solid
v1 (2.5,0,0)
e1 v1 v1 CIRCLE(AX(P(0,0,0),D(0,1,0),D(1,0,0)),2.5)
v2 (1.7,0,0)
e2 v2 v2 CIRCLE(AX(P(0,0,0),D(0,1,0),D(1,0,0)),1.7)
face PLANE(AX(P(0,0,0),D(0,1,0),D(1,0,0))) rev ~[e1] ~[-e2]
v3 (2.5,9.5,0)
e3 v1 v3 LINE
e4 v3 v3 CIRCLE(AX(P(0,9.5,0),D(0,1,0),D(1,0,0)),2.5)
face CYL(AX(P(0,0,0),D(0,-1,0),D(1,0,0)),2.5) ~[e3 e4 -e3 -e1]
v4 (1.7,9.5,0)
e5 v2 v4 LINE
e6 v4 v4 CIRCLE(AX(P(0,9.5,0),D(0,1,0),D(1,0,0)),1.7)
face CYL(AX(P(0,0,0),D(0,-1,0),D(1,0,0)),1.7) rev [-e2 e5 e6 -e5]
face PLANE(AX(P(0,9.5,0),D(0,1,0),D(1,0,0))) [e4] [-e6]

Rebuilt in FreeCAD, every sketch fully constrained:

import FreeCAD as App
import Part
import Sketcher

V = App.Vector

doc = App.newDocument("Part")
params = doc.addObject("Spreadsheet::Sheet", "Params")
for row, (alias, value) in enumerate([
    ("sketch1_diameter", "5 mm"),
    ("sketch1_diameter2", "3.4 mm"),
    ("pad1_length", "9.5 mm"),
], start=1):
    params.set(f"A{row}", alias)
    params.set(f"B{row}", "=" + value)
    params.setAlias(f"B{row}", alias)

body = doc.addObject("PartDesign::Body", "Body")

# Sketch on XZ plane
sketch1 = doc.addObject("Sketcher::SketchObject", "Sketch")
body.addObject(sketch1)
sketch1.AttachmentSupport = (doc.XZ_Plane, [""])
sketch1.MapMode = "FlatFace"
sketch1.addGeometry([
    Part.Circle(V(0, 0, 0), V(0, 0, 1), 2.5),
    Part.Circle(V(0, 0, 0), V(0, 0, 1), 1.7),
], False)
sketch1.addConstraint([
    Sketcher.Constraint("Coincident", 0, 3, -1, 1),
    Sketcher.Constraint("Coincident", 1, 3, -1, 1),
    Sketcher.Constraint("Diameter", 0, 5.0),
    Sketcher.Constraint("Diameter", 1, 3.4),
])
sketch1.setExpression("Constraints[2]", "Params.sketch1_diameter")
sketch1.setExpression("Constraints[3]", "Params.sketch1_diameter2")
pad1 = doc.addObject("PartDesign::Pad", "Pad")
body.addObject(pad1)
pad1.Profile = sketch1
pad1.setExpression("Length", "Params.pad1_length")
pad1.Reversed = True

doc.recompute()
